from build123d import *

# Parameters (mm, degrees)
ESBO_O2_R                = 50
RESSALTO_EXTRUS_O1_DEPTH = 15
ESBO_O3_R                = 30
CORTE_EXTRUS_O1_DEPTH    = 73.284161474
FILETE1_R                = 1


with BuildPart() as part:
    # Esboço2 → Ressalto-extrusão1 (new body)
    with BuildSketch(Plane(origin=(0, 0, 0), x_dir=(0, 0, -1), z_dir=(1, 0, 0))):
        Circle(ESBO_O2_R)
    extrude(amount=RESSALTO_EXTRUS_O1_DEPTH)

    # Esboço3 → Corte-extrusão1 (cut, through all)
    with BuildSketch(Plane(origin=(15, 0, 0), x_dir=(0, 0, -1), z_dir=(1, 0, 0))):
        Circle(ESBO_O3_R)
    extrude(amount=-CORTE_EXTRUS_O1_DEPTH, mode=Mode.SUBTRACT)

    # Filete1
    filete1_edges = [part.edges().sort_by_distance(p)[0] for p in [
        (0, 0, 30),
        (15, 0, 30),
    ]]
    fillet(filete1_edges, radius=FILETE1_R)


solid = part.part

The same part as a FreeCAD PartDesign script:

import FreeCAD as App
import Part
import Sketcher
from FreeCAD import Vector
Q = App.Units.Quantity


def edges_at(feature, points):
    """Names of the edges that pass closest to the given points."""
    edges = feature.Shape.Edges
    near = lambda p: min(range(len(edges)), key=lambda i: edges[i].distToShape(Part.Vertex(*p))[0])
    return sorted({f"Edge{near(p) + 1}" for p in points})

doc = App.newDocument("Part")
body = doc.addObject("PartDesign::Body", "Body")

# Sketch on YZ plane
sketch1 = body.newObject("Sketcher::SketchObject", "Sketch")
sketch1.AttachmentSupport = (doc.getObject("YZ_Plane"), [""])
sketch1.MapMode = "FlatFace"
sketch1.addGeometry(Part.Circle(Vector(0, 0, 0), Vector(0, 0, 1), 50), False)
sketch1.addConstraint([
    Sketcher.Constraint("Coincident", 0, 3, -1, 1),
    Sketcher.Constraint("Diameter", 0, Q("100 mm")),
])
pad1 = body.newObject("PartDesign::Pad", "Pad")
pad1.Profile = sketch1
pad1.Length = 15

# Sketch on YZ plane
sketch2 = body.newObject("Sketcher::SketchObject", "Sketch001")
sketch2.AttachmentSupport = (doc.getObject("YZ_Plane"), [""])
sketch2.MapMode = "FlatFace"
sketch2.AttachmentOffset = App.Placement(Vector(0, 0, 15), App.Rotation())
sketch2.addGeometry(Part.Circle(Vector(0, 0, 0), Vector(0, 0, 1), 30), False)
sketch2.addConstraint([
    Sketcher.Constraint("Coincident", 0, 3, -1, 1),
    Sketcher.Constraint("Diameter", 0, Q("60 mm")),
])
pocket1 = body.newObject("PartDesign::Pocket", "Pocket")
pocket1.Profile = sketch2
pocket1.Type = "ThroughAll"
doc.recompute()

fillet = body.newObject("PartDesign::Fillet", "Fillet")
fillet.Base = (pocket1, edges_at(pocket1, [(0, 0, 30), (15, 0, 30)]))
fillet.Radius = 1

doc.recompute()
